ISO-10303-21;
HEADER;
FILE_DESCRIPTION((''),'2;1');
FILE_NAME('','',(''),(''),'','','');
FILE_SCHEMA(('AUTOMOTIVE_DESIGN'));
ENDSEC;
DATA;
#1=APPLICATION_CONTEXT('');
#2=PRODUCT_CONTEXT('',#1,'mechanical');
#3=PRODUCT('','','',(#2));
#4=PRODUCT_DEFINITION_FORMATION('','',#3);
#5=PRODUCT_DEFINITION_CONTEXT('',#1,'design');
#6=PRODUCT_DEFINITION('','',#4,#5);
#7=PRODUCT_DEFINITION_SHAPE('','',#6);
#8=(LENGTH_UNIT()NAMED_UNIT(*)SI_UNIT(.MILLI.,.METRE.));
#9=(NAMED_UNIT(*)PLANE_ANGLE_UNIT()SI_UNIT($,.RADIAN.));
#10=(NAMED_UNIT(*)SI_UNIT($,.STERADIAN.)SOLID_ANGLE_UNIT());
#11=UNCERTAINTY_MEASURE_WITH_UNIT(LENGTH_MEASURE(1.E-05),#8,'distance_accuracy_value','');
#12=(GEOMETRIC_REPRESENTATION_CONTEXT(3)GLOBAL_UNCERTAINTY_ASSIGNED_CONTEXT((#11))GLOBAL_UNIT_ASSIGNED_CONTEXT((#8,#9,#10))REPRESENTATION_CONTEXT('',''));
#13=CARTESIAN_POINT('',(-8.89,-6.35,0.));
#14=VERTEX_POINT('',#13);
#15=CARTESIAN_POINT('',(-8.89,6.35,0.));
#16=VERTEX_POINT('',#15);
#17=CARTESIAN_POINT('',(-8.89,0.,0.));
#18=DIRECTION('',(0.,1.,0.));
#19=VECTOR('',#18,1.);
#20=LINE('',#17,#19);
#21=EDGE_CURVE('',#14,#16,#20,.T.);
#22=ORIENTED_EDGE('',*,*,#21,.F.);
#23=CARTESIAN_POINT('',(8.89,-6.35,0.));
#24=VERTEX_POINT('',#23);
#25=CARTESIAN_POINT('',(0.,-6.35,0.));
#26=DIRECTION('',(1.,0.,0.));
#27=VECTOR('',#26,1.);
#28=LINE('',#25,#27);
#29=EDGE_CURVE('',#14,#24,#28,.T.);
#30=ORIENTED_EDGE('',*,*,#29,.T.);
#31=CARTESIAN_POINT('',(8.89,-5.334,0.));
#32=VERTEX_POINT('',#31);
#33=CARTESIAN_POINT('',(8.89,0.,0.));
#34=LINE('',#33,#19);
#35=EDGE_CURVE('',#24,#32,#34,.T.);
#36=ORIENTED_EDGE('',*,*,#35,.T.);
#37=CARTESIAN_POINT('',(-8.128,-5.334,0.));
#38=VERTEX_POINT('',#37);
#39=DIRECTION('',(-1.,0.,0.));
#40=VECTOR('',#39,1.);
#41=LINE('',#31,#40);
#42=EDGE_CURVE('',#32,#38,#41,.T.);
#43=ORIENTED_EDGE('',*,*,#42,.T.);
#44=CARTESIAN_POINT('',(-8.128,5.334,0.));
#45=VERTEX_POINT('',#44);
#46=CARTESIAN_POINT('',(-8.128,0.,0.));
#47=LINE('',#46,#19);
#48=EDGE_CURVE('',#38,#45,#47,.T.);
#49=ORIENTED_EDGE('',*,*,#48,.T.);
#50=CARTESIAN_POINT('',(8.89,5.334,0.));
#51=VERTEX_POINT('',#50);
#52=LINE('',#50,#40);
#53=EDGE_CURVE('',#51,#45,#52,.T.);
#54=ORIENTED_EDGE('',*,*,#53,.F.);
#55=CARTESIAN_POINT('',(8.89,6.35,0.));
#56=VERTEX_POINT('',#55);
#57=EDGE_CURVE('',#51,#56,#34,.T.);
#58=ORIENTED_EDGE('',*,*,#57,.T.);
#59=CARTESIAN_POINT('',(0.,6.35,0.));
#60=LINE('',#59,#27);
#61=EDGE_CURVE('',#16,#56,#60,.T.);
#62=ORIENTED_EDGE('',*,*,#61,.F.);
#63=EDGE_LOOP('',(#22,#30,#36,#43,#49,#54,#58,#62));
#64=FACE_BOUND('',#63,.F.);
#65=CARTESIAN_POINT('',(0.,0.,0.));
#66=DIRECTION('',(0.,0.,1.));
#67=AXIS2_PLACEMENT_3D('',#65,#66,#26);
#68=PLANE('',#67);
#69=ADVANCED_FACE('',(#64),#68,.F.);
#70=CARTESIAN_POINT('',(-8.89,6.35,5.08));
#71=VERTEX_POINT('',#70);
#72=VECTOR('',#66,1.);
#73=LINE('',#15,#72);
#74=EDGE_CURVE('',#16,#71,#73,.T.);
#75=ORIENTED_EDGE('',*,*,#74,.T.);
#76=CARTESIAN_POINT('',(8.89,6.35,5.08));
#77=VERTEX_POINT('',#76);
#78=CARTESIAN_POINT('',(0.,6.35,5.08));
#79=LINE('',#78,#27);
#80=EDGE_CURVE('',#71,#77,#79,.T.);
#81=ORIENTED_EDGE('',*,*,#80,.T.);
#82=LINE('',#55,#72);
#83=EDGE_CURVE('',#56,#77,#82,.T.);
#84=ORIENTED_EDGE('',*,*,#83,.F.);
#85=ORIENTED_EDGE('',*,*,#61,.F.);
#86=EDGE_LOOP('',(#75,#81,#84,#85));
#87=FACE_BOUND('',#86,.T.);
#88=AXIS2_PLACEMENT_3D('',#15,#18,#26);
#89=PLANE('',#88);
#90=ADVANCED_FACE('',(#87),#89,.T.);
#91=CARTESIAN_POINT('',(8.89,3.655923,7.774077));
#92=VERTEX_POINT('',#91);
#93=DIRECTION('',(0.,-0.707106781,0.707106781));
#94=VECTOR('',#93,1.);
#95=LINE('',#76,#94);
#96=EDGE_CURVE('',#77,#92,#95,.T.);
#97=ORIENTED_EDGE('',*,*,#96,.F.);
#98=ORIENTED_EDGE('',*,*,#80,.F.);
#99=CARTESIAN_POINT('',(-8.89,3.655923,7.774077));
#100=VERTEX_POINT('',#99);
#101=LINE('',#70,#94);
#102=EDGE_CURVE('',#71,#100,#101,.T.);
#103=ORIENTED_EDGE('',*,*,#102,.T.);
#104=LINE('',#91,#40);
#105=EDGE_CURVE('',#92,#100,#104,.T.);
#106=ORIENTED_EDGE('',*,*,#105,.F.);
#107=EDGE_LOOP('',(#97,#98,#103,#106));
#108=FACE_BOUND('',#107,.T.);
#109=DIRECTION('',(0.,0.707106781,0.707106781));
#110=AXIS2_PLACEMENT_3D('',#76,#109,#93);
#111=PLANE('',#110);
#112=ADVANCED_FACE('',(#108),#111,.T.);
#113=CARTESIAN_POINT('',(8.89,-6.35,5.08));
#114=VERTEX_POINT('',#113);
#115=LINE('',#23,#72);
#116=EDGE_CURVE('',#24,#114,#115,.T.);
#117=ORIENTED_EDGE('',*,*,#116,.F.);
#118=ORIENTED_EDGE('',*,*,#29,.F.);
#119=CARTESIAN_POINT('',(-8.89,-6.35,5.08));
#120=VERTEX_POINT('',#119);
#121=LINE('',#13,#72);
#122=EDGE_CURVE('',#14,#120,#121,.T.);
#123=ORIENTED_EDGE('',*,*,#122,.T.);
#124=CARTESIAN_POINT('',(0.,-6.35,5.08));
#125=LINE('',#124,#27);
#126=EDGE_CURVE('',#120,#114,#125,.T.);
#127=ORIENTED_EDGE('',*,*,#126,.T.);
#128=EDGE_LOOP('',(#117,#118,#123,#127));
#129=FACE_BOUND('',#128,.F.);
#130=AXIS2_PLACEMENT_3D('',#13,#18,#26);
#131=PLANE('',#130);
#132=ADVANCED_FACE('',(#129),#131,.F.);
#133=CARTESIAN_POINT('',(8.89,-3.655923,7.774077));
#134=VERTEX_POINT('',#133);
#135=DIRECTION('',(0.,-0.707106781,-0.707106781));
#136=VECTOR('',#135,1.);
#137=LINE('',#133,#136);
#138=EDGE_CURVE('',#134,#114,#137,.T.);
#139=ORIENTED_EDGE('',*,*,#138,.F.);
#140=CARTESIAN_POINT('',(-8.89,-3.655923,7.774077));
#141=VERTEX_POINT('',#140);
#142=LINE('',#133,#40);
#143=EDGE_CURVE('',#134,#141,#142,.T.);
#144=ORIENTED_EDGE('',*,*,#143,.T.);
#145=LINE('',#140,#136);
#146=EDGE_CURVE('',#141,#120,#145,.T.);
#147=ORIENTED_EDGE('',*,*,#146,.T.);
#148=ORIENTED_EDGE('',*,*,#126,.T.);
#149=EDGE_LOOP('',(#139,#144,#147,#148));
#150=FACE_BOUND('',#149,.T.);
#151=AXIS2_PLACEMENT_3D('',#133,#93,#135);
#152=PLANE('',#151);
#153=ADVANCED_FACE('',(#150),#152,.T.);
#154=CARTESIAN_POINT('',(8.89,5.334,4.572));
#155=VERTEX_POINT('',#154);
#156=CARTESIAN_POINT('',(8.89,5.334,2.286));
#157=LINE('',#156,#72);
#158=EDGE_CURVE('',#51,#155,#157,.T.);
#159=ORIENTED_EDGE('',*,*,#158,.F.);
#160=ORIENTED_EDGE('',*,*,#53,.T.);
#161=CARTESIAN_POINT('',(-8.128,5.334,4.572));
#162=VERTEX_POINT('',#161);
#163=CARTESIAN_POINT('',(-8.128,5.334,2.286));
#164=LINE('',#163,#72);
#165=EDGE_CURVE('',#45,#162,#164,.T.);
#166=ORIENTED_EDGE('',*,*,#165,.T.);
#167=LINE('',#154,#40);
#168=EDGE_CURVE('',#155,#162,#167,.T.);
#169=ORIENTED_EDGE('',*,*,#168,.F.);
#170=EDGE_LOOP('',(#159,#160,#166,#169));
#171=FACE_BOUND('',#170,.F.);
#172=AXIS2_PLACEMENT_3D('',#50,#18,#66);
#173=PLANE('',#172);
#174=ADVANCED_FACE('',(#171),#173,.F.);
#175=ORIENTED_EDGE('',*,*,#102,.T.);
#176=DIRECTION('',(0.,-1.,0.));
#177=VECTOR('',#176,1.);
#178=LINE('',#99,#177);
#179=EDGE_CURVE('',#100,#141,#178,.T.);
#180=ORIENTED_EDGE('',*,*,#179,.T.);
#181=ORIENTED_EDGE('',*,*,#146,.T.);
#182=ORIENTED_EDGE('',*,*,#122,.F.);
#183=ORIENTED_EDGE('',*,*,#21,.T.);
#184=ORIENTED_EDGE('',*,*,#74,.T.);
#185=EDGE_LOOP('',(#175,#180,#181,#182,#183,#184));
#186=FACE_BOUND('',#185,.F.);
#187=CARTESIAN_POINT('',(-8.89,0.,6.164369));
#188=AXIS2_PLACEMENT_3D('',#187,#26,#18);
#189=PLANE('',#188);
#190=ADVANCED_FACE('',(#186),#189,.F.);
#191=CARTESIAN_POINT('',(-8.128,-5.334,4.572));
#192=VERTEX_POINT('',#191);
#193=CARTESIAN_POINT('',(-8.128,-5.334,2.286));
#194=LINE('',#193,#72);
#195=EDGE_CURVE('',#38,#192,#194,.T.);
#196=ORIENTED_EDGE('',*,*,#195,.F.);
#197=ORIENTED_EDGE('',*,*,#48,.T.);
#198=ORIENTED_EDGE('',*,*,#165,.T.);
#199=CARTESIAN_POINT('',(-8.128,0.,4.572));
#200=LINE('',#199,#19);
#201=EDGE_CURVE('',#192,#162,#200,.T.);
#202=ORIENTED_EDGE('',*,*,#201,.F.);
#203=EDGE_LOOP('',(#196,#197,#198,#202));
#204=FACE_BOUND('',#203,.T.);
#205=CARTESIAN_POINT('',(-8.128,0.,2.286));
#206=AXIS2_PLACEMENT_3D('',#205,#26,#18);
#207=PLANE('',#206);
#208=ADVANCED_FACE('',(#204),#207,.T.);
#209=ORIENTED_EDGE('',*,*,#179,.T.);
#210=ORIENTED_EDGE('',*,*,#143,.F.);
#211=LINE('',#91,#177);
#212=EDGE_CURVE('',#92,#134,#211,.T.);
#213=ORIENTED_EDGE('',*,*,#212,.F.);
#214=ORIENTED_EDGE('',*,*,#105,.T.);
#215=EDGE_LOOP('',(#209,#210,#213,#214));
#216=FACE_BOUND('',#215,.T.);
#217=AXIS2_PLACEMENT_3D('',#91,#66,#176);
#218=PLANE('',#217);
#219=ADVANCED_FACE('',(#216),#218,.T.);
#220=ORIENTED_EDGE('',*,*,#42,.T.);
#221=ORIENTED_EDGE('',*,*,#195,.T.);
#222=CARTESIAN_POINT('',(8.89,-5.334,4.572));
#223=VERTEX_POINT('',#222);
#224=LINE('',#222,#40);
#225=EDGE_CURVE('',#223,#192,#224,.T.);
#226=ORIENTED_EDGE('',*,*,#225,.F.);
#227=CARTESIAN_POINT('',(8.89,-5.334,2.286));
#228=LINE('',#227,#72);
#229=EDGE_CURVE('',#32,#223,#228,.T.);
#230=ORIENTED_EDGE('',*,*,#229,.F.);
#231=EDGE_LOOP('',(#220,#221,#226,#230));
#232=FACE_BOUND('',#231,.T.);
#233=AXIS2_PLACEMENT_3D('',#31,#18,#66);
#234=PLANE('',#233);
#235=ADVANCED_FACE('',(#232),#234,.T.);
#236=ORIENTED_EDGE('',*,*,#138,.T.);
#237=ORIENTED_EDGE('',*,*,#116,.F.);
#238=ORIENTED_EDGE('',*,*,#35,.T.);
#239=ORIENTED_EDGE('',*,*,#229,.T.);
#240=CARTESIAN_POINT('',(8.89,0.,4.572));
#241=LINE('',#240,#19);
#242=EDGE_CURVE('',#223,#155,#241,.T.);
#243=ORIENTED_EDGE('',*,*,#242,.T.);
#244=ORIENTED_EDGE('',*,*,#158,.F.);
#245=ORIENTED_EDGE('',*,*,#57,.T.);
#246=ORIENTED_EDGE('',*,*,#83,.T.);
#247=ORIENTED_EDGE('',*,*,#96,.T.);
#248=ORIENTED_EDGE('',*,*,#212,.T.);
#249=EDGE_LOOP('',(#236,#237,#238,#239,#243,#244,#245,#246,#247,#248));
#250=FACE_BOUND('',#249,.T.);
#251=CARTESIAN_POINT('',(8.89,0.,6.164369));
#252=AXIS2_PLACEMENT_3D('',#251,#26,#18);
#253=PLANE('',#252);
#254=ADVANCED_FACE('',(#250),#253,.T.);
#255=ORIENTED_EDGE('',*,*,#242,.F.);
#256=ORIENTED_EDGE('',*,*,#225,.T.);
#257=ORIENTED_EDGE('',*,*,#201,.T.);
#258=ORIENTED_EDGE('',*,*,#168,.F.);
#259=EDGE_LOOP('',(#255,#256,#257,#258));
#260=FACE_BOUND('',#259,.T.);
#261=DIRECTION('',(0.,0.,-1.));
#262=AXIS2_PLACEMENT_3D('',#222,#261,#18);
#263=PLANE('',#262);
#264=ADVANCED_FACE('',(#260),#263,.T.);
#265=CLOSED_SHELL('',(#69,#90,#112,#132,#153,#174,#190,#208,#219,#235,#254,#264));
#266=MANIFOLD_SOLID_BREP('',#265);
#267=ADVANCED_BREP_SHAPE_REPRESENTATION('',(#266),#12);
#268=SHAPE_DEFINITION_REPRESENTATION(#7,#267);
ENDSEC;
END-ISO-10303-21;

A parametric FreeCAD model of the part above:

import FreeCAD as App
import Part
import Sketcher
from FreeCAD import Vector
Q = App.Units.Quantity


def add_polygon(sketch, points):
    """Adds a closed chain of lines whose ends are joined by coincident constraints."""
    first, n = sketch.GeometryCount, len(points)
    for a, b in zip(points, points[1:] + points[:1]):
        sketch.addGeometry(Part.LineSegment(App.Vector(*a, 0), App.Vector(*b, 0)), False)
    for i in range(n):
        sketch.addConstraint(Sketcher.Constraint("Coincident", first + i, 2, first + (i + 1) % n, 1))

doc = App.newDocument("Part")
params = doc.addObject("Spreadsheet::Sheet", "Params")
for row, (alias, value) in enumerate([
    ("sketch1_width", "0.7 in"),
    ("sketch1_height", "0.5 in"),
    ("pad1_length", "0.2 in"),
    ("sketch2_width", "0.5 in"),
    ("sketch2_length", "0.15 in"),
    ("pad2_length", "0.7 in"),
    ("sketch3_width", "0.42 in"),
    ("sketch3_height", "0.18 in"),
    ("pocket1_length", "0.67 in"),
], start=1):
    params.set(f"A{row}", alias)
    params.set(f"B{row}", "=" + value)
    params.setAlias(f"B{row}", alias)

body = doc.addObject("PartDesign::Body", "Body")

sketch1 = body.newObject("Sketcher::SketchObject", "Sketch")
sketch1.AttachmentSupport = (doc.getObject("XY_Plane"), [""])
sketch1.MapMode = "FlatFace"
add_polygon(sketch1, [(-9, 6), (-9, -6), (9, -6), (9, 6)])
sketch1.addConstraint([
    Sketcher.Constraint("Vertical", 0),
    Sketcher.Constraint("Horizontal", 1),
    Sketcher.Constraint("Vertical", 2),
    Sketcher.Constraint("Horizontal", 3),
    Sketcher.Constraint("Symmetric", 0, 2, 2, 2, -1, 1),
    Sketcher.Constraint("DistanceX", 1, 1, 1, 2, Q("0.7 in")),
    Sketcher.Constraint("DistanceY", 0, 2, 0, 1, Q("0.5 in")),
])
sketch1.setExpression("Constraints[9]", "Params.sketch1_width")
sketch1.setExpression("Constraints[10]", "Params.sketch1_height")
pad1 = body.newObject("PartDesign::Pad", "Pad")
pad1.Profile = sketch1
pad1.setExpression("Length", "Params.pad1_length")

sketch2 = body.newObject("Sketcher::SketchObject", "Sketch001")
sketch2.AttachmentSupport = (doc.getObject("YZ_Plane"), [""])
sketch2.MapMode = "FlatFace"
sketch2.AttachmentOffset = App.Placement(Vector(0, 0, 0.35 * 25.4), App.Rotation())
add_polygon(sketch2, [(-3.7, 7.8), (-6.3, 5.1), (6.3, 5.1), (3.7, 7.8)])
sketch2.addConstraint([
    Sketcher.Constraint("Horizontal", 1),
    Sketcher.Constraint("Horizontal", 3),
    Sketcher.Constraint("Perpendicular", 0, 2),
    Sketcher.Constraint("Equal", 0, 2),
    Sketcher.Constraint("DistanceX", 1, 1, 1, 2, Q("0.5 in")),
    Sketcher.Constraint("DistanceY", -1, 1, 0, 2, Q("0.2 in")),
    Sketcher.Constraint("Distance", 0, Q("0.15 in")),
    Sketcher.Constraint("DistanceX", 0, 2, -1, 1, Q("0.25 in")),
])
sketch2.setExpression("Constraints[8]", "Params.sketch2_width")
sketch2.setExpression("Constraints[10]", "Params.sketch2_length")
pad2 = body.newObject("PartDesign::Pad", "Pad001")
pad2.Profile = sketch2
pad2.setExpression("Length", "Params.pad2_length")
pad2.Reversed = True

sketch3 = body.newObject("Sketcher::SketchObject", "Sketch002")
sketch3.AttachmentSupport = (doc.getObject("YZ_Plane"), [""])
sketch3.MapMode = "FlatFace"
sketch3.AttachmentOffset = App.Placement(Vector(0, 0, 0.35 * 25.4), App.Rotation())
add_polygon(sketch3, [(-5.3, 4.6), (-5.3, 0), (5.3, 0), (5.3, 4.6)])
sketch3.addConstraint([
    Sketcher.Constraint("Vertical", 0),
    Sketcher.Constraint("Horizontal", 1),
    Sketcher.Constraint("Vertical", 2),
    Sketcher.Constraint("Horizontal", 3),
    Sketcher.Constraint("Symmetric", 0, 2, 1, 2, -1, 1),
    Sketcher.Constraint("DistanceX", 1, 1, 1, 2, Q("0.42 in")),
    Sketcher.Constraint("DistanceY", 0, 2, 0, 1, Q("0.18 in")),
])
sketch3.setExpression("Constraints[9]", "Params.sketch3_width")
sketch3.setExpression("Constraints[10]", "Params.sketch3_height")
pocket1 = body.newObject("PartDesign::Pocket", "Pocket")
pocket1.Profile = sketch3
pocket1.setExpression("Length", "Params.pocket1_length")

doc.recompute()
